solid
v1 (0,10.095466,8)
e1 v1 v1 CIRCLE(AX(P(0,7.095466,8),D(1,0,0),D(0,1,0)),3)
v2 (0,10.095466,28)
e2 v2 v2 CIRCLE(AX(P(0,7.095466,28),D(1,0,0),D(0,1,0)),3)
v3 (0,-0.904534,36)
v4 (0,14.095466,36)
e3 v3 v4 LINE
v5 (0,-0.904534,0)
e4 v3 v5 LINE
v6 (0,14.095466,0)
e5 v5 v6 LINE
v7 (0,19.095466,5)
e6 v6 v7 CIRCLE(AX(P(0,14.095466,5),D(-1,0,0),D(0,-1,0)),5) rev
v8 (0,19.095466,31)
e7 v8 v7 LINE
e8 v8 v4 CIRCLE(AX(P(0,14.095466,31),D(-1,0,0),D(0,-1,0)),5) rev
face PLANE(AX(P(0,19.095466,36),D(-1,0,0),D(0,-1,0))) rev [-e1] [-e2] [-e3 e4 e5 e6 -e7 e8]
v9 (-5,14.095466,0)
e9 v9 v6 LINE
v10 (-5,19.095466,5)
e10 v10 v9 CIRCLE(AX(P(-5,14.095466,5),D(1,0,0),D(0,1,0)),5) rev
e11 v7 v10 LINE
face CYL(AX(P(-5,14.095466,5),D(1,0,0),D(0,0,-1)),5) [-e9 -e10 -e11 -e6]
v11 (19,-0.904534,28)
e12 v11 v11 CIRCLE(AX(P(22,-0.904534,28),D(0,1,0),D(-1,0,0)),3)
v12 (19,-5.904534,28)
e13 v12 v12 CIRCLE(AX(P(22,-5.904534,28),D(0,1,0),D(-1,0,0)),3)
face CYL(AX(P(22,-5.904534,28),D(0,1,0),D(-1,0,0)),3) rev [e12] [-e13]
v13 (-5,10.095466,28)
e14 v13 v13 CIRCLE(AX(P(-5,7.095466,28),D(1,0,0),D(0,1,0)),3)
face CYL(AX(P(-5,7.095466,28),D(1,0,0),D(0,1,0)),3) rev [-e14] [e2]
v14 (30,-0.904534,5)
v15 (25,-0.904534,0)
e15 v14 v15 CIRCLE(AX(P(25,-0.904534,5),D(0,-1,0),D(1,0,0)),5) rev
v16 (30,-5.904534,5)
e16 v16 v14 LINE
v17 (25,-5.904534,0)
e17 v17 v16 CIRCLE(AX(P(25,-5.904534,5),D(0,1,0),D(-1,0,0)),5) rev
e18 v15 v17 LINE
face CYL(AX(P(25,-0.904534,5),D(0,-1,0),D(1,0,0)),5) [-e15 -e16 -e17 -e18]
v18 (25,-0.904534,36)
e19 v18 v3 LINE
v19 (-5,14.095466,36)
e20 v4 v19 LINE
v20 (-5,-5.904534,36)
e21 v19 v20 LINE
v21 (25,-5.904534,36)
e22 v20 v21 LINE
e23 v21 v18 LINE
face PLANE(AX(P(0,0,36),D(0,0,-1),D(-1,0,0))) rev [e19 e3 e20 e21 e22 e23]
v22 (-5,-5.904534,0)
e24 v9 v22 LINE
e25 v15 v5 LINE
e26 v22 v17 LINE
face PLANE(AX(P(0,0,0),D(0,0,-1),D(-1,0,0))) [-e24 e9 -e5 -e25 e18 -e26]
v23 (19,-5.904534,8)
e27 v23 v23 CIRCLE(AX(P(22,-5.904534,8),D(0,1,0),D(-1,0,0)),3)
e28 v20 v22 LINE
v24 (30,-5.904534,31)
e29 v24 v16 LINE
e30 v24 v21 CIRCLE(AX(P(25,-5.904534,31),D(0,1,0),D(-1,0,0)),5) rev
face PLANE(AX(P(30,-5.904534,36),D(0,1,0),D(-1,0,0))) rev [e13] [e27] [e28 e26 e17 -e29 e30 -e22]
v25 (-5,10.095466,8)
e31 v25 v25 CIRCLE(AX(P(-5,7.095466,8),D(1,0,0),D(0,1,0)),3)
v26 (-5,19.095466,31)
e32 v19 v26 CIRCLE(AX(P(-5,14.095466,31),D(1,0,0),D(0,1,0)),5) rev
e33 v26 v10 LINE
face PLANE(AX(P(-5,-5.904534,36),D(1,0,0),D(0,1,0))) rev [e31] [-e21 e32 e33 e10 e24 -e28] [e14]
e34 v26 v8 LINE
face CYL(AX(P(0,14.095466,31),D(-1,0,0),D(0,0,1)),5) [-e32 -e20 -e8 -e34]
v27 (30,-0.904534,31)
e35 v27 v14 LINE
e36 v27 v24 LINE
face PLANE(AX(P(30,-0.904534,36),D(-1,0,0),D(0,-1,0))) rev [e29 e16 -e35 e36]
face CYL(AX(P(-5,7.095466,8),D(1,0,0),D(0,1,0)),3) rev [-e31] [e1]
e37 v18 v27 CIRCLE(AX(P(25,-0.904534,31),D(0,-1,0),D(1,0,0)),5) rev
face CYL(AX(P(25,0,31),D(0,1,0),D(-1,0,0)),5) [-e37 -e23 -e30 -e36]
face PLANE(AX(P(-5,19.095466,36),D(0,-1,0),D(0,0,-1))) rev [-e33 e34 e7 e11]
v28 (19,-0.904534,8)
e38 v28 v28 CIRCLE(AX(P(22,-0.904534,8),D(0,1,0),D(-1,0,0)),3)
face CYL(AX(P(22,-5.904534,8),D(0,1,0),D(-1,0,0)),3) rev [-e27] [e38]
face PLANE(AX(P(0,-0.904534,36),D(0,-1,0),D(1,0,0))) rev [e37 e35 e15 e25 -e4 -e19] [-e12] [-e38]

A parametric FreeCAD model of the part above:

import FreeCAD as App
import Part
import Sketcher


def edges_at(feature, points):
    """Names of the edges that pass closest to the given points."""
    edges = feature.Shape.Edges
    near = lambda p: min(range(len(edges)), key=lambda i: edges[i].distToShape(Part.Vertex(*p))[0])
    return sorted({f"Edge{near(p) + 1}" for p in points})

doc = App.newDocument("Part")
body = doc.addObject("PartDesign::Body", "Body")

sketch1 = body.newObject("Sketcher::SketchObject", "Sketch")
sketch1.AttachmentSupport = (doc.getObject("XY_Plane"), [""])
sketch1.MapMode = "FlatFace"
sketch1.addGeometry([
    Part.LineSegment(App.Vector(0, -1, 0), App.Vector(0, 19, 0)),
    Part.LineSegment(App.Vector(0, 19, 0), App.Vector(-5, 19, 0)),
    Part.LineSegment(App.Vector(-5, 19, 0), App.Vector(-5, -6, 0)),
    Part.LineSegment(App.Vector(-5, -6, 0), App.Vector(30, -6, 0)),
    Part.LineSegment(App.Vector(30, -6, 0), App.Vector(30, -1, 0)),
    Part.LineSegment(App.Vector(30, -1, 0), App.Vector(0, -1, 0)),
], False)
sketch1.addConstraint([
    Sketcher.Constraint("Coincident", 0, 2, 1, 1),
    Sketcher.Constraint("Coincident", 1, 2, 2, 1),
    Sketcher.Constraint("Coincident", 2, 2, 3, 1),
    Sketcher.Constraint("Coincident", 3, 2, 4, 1),
    Sketcher.Constraint("Coincident", 4, 2, 5, 1),
    Sketcher.Constraint("Coincident", 5, 2, 0, 1),
    Sketcher.Constraint("Vertical", 0),
    Sketcher.Constraint("Horizontal", 1),
    Sketcher.Constraint("Vertical", 2),
    Sketcher.Constraint("Horizontal", 3),
    Sketcher.Constraint("Vertical", 4),
    Sketcher.Constraint("Horizontal", 5),
    Sketcher.Constraint("PointOnObject", 0, 2, -2),
    Sketcher.Constraint("Equal", 1, 4),
    Sketcher.Constraint("DistanceX", 1, 2, 1, 1, 5.0),
    Sketcher.Constraint("DistanceX", 3, 1, 3, 2, 35.0),
    Sketcher.Constraint("DistanceY", 0, 1, 0, 2, 20.0),
    Sketcher.Constraint("DistanceY", -1, 1, 0, 2, 19.095466),
])
pad1 = body.newObject("PartDesign::Pad", "Pad")
pad1.Profile = sketch1
pad1.Length = 36

sketch2 = body.newObject("Sketcher::SketchObject", "Sketch001")
sketch2.AttachmentSupport = (doc.getObject("XZ_Plane"), [""])
sketch2.MapMode = "FlatFace"
sketch2.AttachmentOffset = App.Placement(App.Vector(0, 0, 0.904534), App.Rotation())
sketch2.addGeometry([
    Part.Circle(App.Vector(22, 8, 0), App.Vector(0, 0, 1), 3),
    Part.Circle(App.Vector(22, 28, 0), App.Vector(0, 0, 1), 3),
], False)
sketch2.addConstraint([
    Sketcher.Constraint("Equal", 0, 1),
    Sketcher.Constraint("Vertical", 0, 3, 1, 3),
    Sketcher.Constraint("Diameter", 0, 6.0),
    Sketcher.Constraint("DistanceX", -1, 1, 0, 3, 22.0),
    Sketcher.Constraint("DistanceY", -1, 1, 0, 3, 8.0),
    Sketcher.Constraint("DistanceY", -1, 1, 1, 3, 28.0),
])
pocket1 = body.newObject("PartDesign::Pocket", "Pocket")
pocket1.Profile = sketch2
pocket1.Length = 5
pocket1.Reversed = True

sketch3 = body.newObject("Sketcher::SketchObject", "Sketch002")
sketch3.AttachmentSupport = (doc.getObject("YZ_Plane"), [""])
sketch3.MapMode = "FlatFace"
sketch3.addGeometry([
    Part.Circle(App.Vector(7.1, 28, 0), App.Vector(0, 0, 1), 3),
    Part.Circle(App.Vector(7.1, 8, 0), App.Vector(0, 0, 1), 3),
], False)
sketch3.addConstraint([
    Sketcher.Constraint("Equal", 0, 1),
    Sketcher.Constraint("Vertical", 0, 3, 1, 3),
    Sketcher.Constraint("Diameter", 0, 6.0),
    Sketcher.Constraint("DistanceY", -1, 1, 0, 3, 28.0),
    Sketcher.Constraint("DistanceY", -1, 1, 1, 3, 8.0),
    Sketcher.Constraint("DistanceX", -1, 1, 0, 3, 7.095466),
])
pocket2 = body.newObject("PartDesign::Pocket", "Pocket001")
pocket2.Profile = sketch3
pocket2.Length = 5
doc.recompute()

fillet = body.newObject("PartDesign::Fillet", "Fillet")
fillet.Base = (pocket2, edges_at(pocket2, [
    (30, -3.405, 36),
    (-2.5, 19.095, 36),
    (30, -3.405, 0),
    (-2.5, 19.095, 0),
]))
fillet.Radius = 5

doc.recompute()
